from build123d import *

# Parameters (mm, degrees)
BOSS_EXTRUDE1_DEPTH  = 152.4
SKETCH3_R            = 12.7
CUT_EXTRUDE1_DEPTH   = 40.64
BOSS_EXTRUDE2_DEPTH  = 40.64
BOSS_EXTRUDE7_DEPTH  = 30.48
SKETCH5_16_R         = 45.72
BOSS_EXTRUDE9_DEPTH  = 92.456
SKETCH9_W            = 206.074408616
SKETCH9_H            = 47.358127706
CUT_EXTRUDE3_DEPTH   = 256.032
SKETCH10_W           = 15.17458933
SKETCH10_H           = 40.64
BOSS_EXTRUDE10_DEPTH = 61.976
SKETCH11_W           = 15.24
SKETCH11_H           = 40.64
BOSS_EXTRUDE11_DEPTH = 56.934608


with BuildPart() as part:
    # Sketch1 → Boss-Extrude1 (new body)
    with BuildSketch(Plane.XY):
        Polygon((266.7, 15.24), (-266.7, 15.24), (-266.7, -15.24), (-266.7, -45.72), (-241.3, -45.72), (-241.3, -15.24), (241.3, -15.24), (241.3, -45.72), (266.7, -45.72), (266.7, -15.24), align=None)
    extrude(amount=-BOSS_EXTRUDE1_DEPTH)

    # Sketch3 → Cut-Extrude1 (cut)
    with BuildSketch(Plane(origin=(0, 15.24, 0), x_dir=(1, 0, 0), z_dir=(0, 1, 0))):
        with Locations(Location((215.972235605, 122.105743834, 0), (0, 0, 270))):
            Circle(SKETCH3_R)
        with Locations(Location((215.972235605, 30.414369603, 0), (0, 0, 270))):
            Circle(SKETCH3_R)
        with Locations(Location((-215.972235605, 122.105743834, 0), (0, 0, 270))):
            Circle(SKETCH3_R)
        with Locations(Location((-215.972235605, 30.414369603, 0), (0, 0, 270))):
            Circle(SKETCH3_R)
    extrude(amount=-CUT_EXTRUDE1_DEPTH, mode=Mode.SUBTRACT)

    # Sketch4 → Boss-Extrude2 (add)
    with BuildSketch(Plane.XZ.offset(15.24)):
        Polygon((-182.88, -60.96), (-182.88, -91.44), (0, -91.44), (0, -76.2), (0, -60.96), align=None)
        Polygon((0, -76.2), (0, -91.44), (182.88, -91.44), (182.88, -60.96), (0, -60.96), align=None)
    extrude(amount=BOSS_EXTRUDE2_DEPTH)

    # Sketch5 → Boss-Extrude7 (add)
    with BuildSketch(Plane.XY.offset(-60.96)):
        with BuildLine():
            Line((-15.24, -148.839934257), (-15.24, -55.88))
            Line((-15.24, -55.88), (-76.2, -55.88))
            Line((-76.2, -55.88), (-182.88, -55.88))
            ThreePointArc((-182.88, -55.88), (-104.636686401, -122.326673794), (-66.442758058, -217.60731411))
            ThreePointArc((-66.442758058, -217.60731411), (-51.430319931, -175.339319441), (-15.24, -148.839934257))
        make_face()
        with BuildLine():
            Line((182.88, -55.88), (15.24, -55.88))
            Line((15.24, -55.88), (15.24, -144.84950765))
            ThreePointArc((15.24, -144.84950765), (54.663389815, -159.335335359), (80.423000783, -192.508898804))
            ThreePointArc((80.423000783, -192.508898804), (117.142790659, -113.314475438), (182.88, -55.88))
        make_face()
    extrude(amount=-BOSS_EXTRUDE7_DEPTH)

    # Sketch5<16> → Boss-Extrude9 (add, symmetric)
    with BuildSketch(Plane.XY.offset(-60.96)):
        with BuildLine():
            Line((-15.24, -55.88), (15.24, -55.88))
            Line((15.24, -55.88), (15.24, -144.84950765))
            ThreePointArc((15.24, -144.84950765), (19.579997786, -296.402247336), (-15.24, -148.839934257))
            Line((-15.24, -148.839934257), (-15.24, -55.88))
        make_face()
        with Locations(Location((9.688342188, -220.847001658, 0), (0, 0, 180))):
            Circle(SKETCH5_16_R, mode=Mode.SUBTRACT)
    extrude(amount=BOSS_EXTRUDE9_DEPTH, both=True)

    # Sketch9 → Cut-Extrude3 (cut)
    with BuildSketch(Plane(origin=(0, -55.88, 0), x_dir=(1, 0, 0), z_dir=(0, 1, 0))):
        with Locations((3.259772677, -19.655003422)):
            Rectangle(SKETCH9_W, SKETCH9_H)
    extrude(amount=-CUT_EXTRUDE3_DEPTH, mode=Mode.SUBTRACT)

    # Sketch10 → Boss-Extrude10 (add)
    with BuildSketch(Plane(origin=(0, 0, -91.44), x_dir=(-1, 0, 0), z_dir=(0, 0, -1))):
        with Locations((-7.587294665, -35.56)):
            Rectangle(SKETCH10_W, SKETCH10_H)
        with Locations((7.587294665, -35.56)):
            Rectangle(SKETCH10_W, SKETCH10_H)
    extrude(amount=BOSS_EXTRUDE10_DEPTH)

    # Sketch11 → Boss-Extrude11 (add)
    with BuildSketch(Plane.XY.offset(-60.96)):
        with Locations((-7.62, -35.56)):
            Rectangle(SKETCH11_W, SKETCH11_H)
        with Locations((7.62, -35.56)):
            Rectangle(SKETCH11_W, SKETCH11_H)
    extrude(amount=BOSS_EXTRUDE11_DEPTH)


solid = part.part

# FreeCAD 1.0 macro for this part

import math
import FreeCAD as App
import Part
import Sketcher

V = App.Vector
Q = App.Units.Quantity

doc = App.newDocument("Part")
body = doc.addObject("PartDesign::Body", "Body")

# Sketch on XY plane
sketch1 = body.newObject("Sketcher::SketchObject", "Sketch")
sketch1.AttachmentSupport = (doc.getObject("XY_Plane"), [""])
sketch1.MapMode = "FlatFace"
sketch1.addGeometry([
    Part.LineSegment(V(266.7, 15.24, 0), V(-266.7, 15.24, 0)),  # 0
    Part.LineSegment(V(-266.7, 15.24, 0), V(-266.7, -45.72, 0)),  # 1
    Part.LineSegment(V(-266.7, -45.72, 0), V(-241.3, -45.72, 0)),  # 2
    Part.LineSegment(V(-241.3, -45.72, 0), V(-241.3, -15.24, 0)),  # 3
    Part.LineSegment(V(-241.3, -15.24, 0), V(241.3, -15.24, 0)),  # 4
    Part.LineSegment(V(241.3, -15.24, 0), V(241.3, -45.72, 0)),  # 5
    Part.LineSegment(V(241.3, -45.72, 0), V(266.7, -45.72, 0)),  # 6
    Part.LineSegment(V(266.7, -45.72, 0), V(266.7, 15.24, 0)),  # 7
], False)
sketch1.addConstraint([
    Sketcher.Constraint("Coincident", 0, 2, 1, 1),
    Sketcher.Constraint("Coincident", 1, 2, 2, 1),
    Sketcher.Constraint("Coincident", 2, 2, 3, 1),
    Sketcher.Constraint("Coincident", 3, 2, 4, 1),
    Sketcher.Constraint("Coincident", 4, 2, 5, 1),
    Sketcher.Constraint("Coincident", 5, 2, 6, 1),
    Sketcher.Constraint("Coincident", 6, 2, 7, 1),
    Sketcher.Constraint("Coincident", 7, 2, 0, 1),
    Sketcher.Constraint("Horizontal", 0),
    Sketcher.Constraint("Vertical", 1),
    Sketcher.Constraint("Horizontal", 2),
    Sketcher.Constraint("Vertical", 3),
    Sketcher.Constraint("Horizontal", 4),
    Sketcher.Constraint("Vertical", 5),
    Sketcher.Constraint("Horizontal", 6),
    Sketcher.Constraint("Vertical", 7),
    Sketcher.Constraint("Symmetric", 2, 2, 5, 2, -2),
    Sketcher.Constraint("Equal", 2, 6),
    Sketcher.Constraint("DistanceX", 0, 2, 0, 1, Q("21 in")),
    Sketcher.Constraint("DistanceX", 2, 1, 2, 2, Q("1 in")),
    Sketcher.Constraint("DistanceY", 1, 2, 1, 1, Q("2.4 in")),
    Sketcher.Constraint("DistanceY", 3, 1, 3, 2, Q("1.2 in")),
    Sketcher.Constraint("DistanceY", -1, 1, 0, 2, Q("0.6 in")),
])
pad1 = body.newObject("PartDesign::Pad", "Pad")
pad1.Profile = sketch1
pad1.Length = Q("6 in")
pad1.Reversed = True

# Sketch on XZ plane
sketch2 = body.newObject("Sketcher::SketchObject", "Sketch001")
sketch2.AttachmentSupport = (doc.getObject("XZ_Plane"), [""])
sketch2.MapMode = "FlatFace"
sketch2.AttachmentOffset = App.Placement(V(0, 0, -0.6 * 25.4), App.Rotation())
sketch2.addGeometry([
    Part.Circle(V(215.972236, -122.105744, 0), V(0, 0, 1), 12.7),
    Part.Circle(V(215.972236, -30.41437, 0), V(0, 0, 1), 12.7),
    Part.Circle(V(-215.972236, -122.105744, 0), V(0, 0, 1), 12.7),
    Part.Circle(V(-215.972236, -30.41437, 0), V(0, 0, 1), 12.7),
], False)
sketch2.addConstraint([
    Sketcher.Constraint("Equal", 0, 1),
    Sketcher.Constraint("Equal", 1, 2),
    Sketcher.Constraint("Equal", 2, 3),
    Sketcher.Constraint("Symmetric", 0, 3, 2, 3, -2),
    Sketcher.Constraint("Symmetric", 1, 3, 3, 3, -2),
    Sketcher.Constraint("Vertical", 0, 3, 1, 3),
    Sketcher.Constraint("Diameter", 0, Q("1 in")),
    Sketcher.Constraint("DistanceY", 1, 3, -1, 1, Q("30.41437 mm")),
    Sketcher.Constraint("DistanceX", 2, 3, 0, 3, Q("431.944471 mm")),
    Sketcher.Constraint("DistanceY", 0, 3, -1, 1, Q("122.105744 mm")),
])
pocket1 = body.newObject("PartDesign::Pocket", "Pocket")
pocket1.Profile = sketch2
pocket1.Length = Q("1.6 in")
pocket1.Reversed = True

# Sketch on XZ plane
sketch3 = body.newObject("Sketcher::SketchObject", "Sketch002")
sketch3.AttachmentSupport = (doc.getObject("XZ_Plane"), [""])
sketch3.MapMode = "FlatFace"
sketch3.AttachmentOffset = App.Placement(V(0, 0, 0.6 * 25.4), App.Rotation())
sketch3.addGeometry([
    Part.LineSegment(V(-182.88, -60.96, 0), V(-182.88, -91.44, 0)),
    Part.LineSegment(V(-182.88, -91.44, 0), V(182.88, -91.44, 0)),
    Part.LineSegment(V(182.88, -91.44, 0), V(182.88, -60.96, 0)),
    Part.LineSegment(V(182.88, -60.96, 0), V(-182.88, -60.96, 0)),
], False)
sketch3.addConstraint([
    Sketcher.Constraint("Coincident", 0, 2, 1, 1),
    Sketcher.Constraint("Coincident", 1, 2, 2, 1),
    Sketcher.Constraint("Coincident", 2, 2, 3, 1),
    Sketcher.Constraint("Coincident", 3, 2, 0, 1),
    Sketcher.Constraint("Vertical", 0),
    Sketcher.Constraint("Horizontal", 1),
    Sketcher.Constraint("Vertical", 2),
    Sketcher.Constraint("Horizontal", 3),
    Sketcher.Constraint("DistanceX", 1, 1, 1, 2, Q("14.4 in")),
    Sketcher.Constraint("DistanceY", 0, 2, 0, 1, Q("1.2 in")),
    Sketcher.Constraint("DistanceX", 0, 2, -1, 1, Q("7.2 in")),
    Sketcher.Constraint("DistanceY", 0, 2, -1, 1, Q("3.6 in")),
])
pad2 = body.newObject("PartDesign::Pad", "Pad001")
pad2.Profile = sketch3
pad2.Length = Q("1.6 in")

# Sketch on XY plane
sketch4 = body.newObject("Sketcher::SketchObject", "Sketch003")
sketch4.AttachmentSupport = (doc.getObject("XY_Plane"), [""])
sketch4.MapMode = "FlatFace"
sketch4.AttachmentOffset = App.Placement(V(0, 0, -2.4 * 25.4), App.Rotation())
sketch4.addGeometry([
    Part.LineSegment(V(-15.24, -148.839934, 0), V(-15.24, -55.88, 0)),  # 0
    Part.LineSegment(V(-15.24, -55.88, 0), V(-182.88, -55.88, 0)),  # 1
    Part.ArcOfCircle(Part.Circle(V(-277.920728, -247.084301, 0), V(0, 0, 1), 213.522422), math.radians(7.935082), math.radians(63.569694)),  # 2
    Part.ArcOfCircle(Part.Circle(V(9.688342, -220.847002, 0), V(0, 0, 1), 76.2), math.radians(109.095495), math.radians(177.563302)),  # 3
    Part.LineSegment(V(182.88, -55.88, 0), V(15.24, -55.88, 0)),  # 4
    Part.LineSegment(V(15.24, -55.88, 0), V(15.24, -144.849508, 0)),  # 5
    Part.ArcOfCircle(Part.Circle(V(9.688342, -220.847002, 0), V(0, 0, 1), 76.2), math.radians(21.832295), math.radians(85.821934)),  # 6
    Part.ArcOfCircle(Part.Circle(V(285.226884, -239.359492, 0), V(0, 0, 1), 210.094286), math.radians(119.15326), math.radians(167.114822)),  # 7
], False)
sketch4.addConstraint([
    Sketcher.Constraint("Coincident", 0, 2, 1, 1),
    Sketcher.Constraint("Coincident", 1, 2, 2, 2),
    Sketcher.Constraint("Coincident", 2, 1, 3, 2),
    Sketcher.Constraint("Coincident", 3, 1, 0, 1),
    Sketcher.Constraint("Coincident", 4, 2, 5, 1),
    Sketcher.Constraint("Coincident", 5, 2, 6, 2),
    Sketcher.Constraint("Coincident", 6, 1, 7, 2),
    Sketcher.Constraint("Coincident", 7, 1, 4, 1),
    Sketcher.Constraint("Vertical", 0),
    Sketcher.Constraint("Horizontal", 1),
    Sketcher.Constraint("Horizontal", 4),
    Sketcher.Constraint("Vertical", 5),
    Sketcher.Constraint("Coincident", 6, 3, 3, 3),
    Sketcher.Constraint("Equal", 3, 6),
    Sketcher.Constraint("Symmetric", 0, 2, 4, 2, -2),
    Sketcher.Constraint("Equal", 1, 4),
    Sketcher.Constraint("Radius", 3, Q("3 in")),
    Sketcher.Constraint("DistanceX", 1, 2, 1, 1, Q("6.6 in")),
    Sketcher.Constraint("DistanceX", 0, 2, -1, 1, Q("0.6 in")),
    Sketcher.Constraint("DistanceY", 0, 2, -1, 1, Q("2.2 in")),
    Sketcher.Constraint("Radius", 2, Q("213.522422 mm")),
    Sketcher.Constraint("Radius", 7, Q("210.094286 mm")),
    Sketcher.Constraint("DistanceY", 2, 3, -1, 1, Q("247.084301 mm")),
    Sketcher.Constraint("DistanceY", 3, 3, -1, 1, Q("220.847002 mm")),
    Sketcher.Constraint("DistanceX", -1, 1, 6, 1, Q("80.423001 mm")),
    Sketcher.Constraint("DistanceY", 6, 1, -1, 1, Q("192.508899 mm")),
])
pad3 = body.newObject("PartDesign::Pad", "Pad002")
pad3.Profile = sketch4
pad3.Length = Q("1.2 in")
pad3.Reversed = True

# Sketch on XY plane
sketch5 = body.newObject("Sketcher::SketchObject", "Sketch004")
sketch5.AttachmentSupport = (doc.getObject("XY_Plane"), [""])
sketch5.MapMode = "FlatFace"
sketch5.AttachmentOffset = App.Placement(V(0, 0, -2.4 * 25.4), App.Rotation())
sketch5.addGeometry([
    Part.LineSegment(V(15.24, -55.88, 0), V(-15.24, -55.88, 0)),  # 0
    Part.LineSegment(V(-15.24, -55.88, 0), V(-15.24, -148.839934, 0)),  # 1
    Part.ArcOfCircle(Part.Circle(V(9.688342, -220.847002, 0), V(0, 0, 1), 76.2), math.radians(109.095495), math.radians(445.821934)),  # 2
    Part.LineSegment(V(15.24, -144.849508, 0), V(15.24, -55.88, 0)),  # 3
    Part.Circle(V(9.688342, -220.847002, 0), V(0, 0, 1), 45.72),  # 4
], False)
sketch5.addConstraint([
    Sketcher.Constraint("Coincident", 0, 2, 1, 1),
    Sketcher.Constraint("Coincident", 1, 2, 2, 1),
    Sketcher.Constraint("Coincident", 2, 2, 3, 1),
    Sketcher.Constraint("Coincident", 3, 2, 0, 1),
    Sketcher.Constraint("Horizontal", 0),
    Sketcher.Constraint("Vertical", 1),
    Sketcher.Constraint("Vertical", 3),
    Sketcher.Constraint("Coincident", 4, 3, 2, 3),
    Sketcher.Constraint("Radius", 2, Q("3 in")),
    Sketcher.Constraint("Diameter", 4, Q("3.6 in")),
    Sketcher.Constraint("DistanceX", 0, 2, 0, 1, Q("1.2 in")),
    Sketcher.Constraint("DistanceX", 0, 2, -1, 1, Q("0.6 in")),
    Sketcher.Constraint("DistanceY", 0, 2, -1, 1, Q("2.2 in")),
    Sketcher.Constraint("DistanceY", 2, 3, -1, 1, Q("220.847002 mm")),
    Sketcher.Constraint("DistanceY", 1, 2, 1, 1, Q("92.959934 mm")),
])
pad4 = body.newObject("PartDesign::Pad", "Pad003")
pad4.Profile = sketch5
pad4.Length = Q("7.28 in")
pad4.Midplane = True

# Sketch on XZ plane
sketch6 = body.newObject("Sketcher::SketchObject", "Sketch005")
sketch6.AttachmentSupport = (doc.getObject("XZ_Plane"), [""])
sketch6.MapMode = "FlatFace"
sketch6.AttachmentOffset = App.Placement(V(0, 0, 2.2 * 25.4), App.Rotation())
sketch6.addGeometry([
    Part.LineSegment(V(-99.777432, -4.02406, 0), V(-99.777432, 43.334067, 0)),
    Part.LineSegment(V(-99.777432, 43.334067, 0), V(106.296977, 43.334067, 0)),
    Part.LineSegment(V(106.296977, 43.334067, 0), V(106.296977, -4.02406, 0)),
    Part.LineSegment(V(106.296977, -4.02406, 0), V(-99.777432, -4.02406, 0)),
], False)
sketch6.addConstraint([
    Sketcher.Constraint("Coincident", 0, 2, 1, 1),
    Sketcher.Constraint("Coincident", 1, 2, 2, 1),
    Sketcher.Constraint("Coincident", 2, 2, 3, 1),
    Sketcher.Constraint("Coincident", 3, 2, 0, 1),
    Sketcher.Constraint("Vertical", 0),
    Sketcher.Constraint("Horizontal", 1),
    Sketcher.Constraint("Vertical", 2),
    Sketcher.Constraint("Horizontal", 3),
    Sketcher.Constraint("DistanceX", 1, 1, 1, 2, Q("206.074409 mm")),
    Sketcher.Constraint("DistanceY", 0, 1, 0, 2, Q("47.358128 mm")),
    Sketcher.Constraint("DistanceX", 0, 2, -1, 1, Q("99.777432 mm")),
    Sketcher.Constraint("DistanceY", 2, 2, -1, 1, Q("4.02406 mm")),
])
pocket2 = body.newObject("PartDesign::Pocket", "Pocket001")
pocket2.Profile = sketch6
pocket2.Length = Q("10.08 in")
pocket2.Reversed = True

# Sketch on XY plane
sketch7 = body.newObject("Sketcher::SketchObject", "Sketch006")
sketch7.AttachmentSupport = (doc.getObject("XY_Plane"), [""])
sketch7.MapMode = "FlatFace"
sketch7.AttachmentOffset = App.Placement(V(0, 0, -3.6 * 25.4), App.Rotation())
sketch7.addGeometry([
    Part.LineSegment(V(15.174589, -15.24, 0), V(15.174589, -55.88, 0)),
    Part.LineSegment(V(15.174589, -55.88, 0), V(-15.174589, -55.88, 0)),
    Part.LineSegment(V(-15.174589, -55.88, 0), V(-15.174589, -15.24, 0)),
    Part.LineSegment(V(-15.174589, -15.24, 0), V(15.174589, -15.24, 0)),
], False)
sketch7.addConstraint([
    Sketcher.Constraint("Coincident", 0, 2, 1, 1),
    Sketcher.Constraint("Coincident", 1, 2, 2, 1),
    Sketcher.Constraint("Coincident", 2, 2, 3, 1),
    Sketcher.Constraint("Coincident", 3, 2, 0, 1),
    Sketcher.Constraint("Vertical", 0),
    Sketcher.Constraint("Horizontal", 1),
    Sketcher.Constraint("Vertical", 2),
    Sketcher.Constraint("Horizontal", 3),
    Sketcher.Constraint("DistanceY", 0, 2, 0, 1, Q("1.6 in")),
    Sketcher.Constraint("DistanceY", 0, 2, -1, 1, Q("2.2 in")),
    Sketcher.Constraint("DistanceX", 1, 2, 1, 1, Q("30.349179 mm")),
    Sketcher.Constraint("DistanceX", -1, 1, 0, 2, Q("15.174589 mm")),
])
pad5 = body.newObject("PartDesign::Pad", "Pad004")
pad5.Profile = sketch7
pad5.Length = Q("2.44 in")
pad5.Reversed = True

# Sketch on XY plane
sketch8 = body.newObject("Sketcher::SketchObject", "Sketch007")
sketch8.AttachmentSupport = (doc.getObject("XY_Plane"), [""])
sketch8.MapMode = "FlatFace"
sketch8.AttachmentOffset = App.Placement(V(0, 0, -2.4 * 25.4), App.Rotation())
sketch8.addGeometry([
    Part.LineSegment(V(-15.24, -15.24, 0), V(-15.24, -55.88, 0)),
    Part.LineSegment(V(-15.24, -55.88, 0), V(15.24, -55.88, 0)),
    Part.LineSegment(V(15.24, -55.88, 0), V(15.24, -15.24, 0)),
    Part.LineSegment(V(15.24, -15.24, 0), V(-15.24, -15.24, 0)),
], False)
sketch8.addConstraint([
    Sketcher.Constraint("Coincident", 0, 2, 1, 1),
    Sketcher.Constraint("Coincident", 1, 2, 2, 1),
    Sketcher.Constraint("Coincident", 2, 2, 3, 1),
    Sketcher.Constraint("Coincident", 3, 2, 0, 1),
    Sketcher.Constraint("Vertical", 0),
    Sketcher.Constraint("Horizontal", 1),
    Sketcher.Constraint("Vertical", 2),
    Sketcher.Constraint("Horizontal", 3),
    Sketcher.Constraint("DistanceX", 1, 1, 1, 2, Q("1.2 in")),
    Sketcher.Constraint("DistanceY", 0, 2, 0, 1, Q("1.6 in")),
    Sketcher.Constraint("DistanceX", 0, 2, -1, 1, Q("0.6 in")),
    Sketcher.Constraint("DistanceY", 0, 2, -1, 1, Q("2.2 in")),
])
pad6 = body.newObject("PartDesign::Pad", "Pad005")
pad6.Profile = sketch8
pad6.Length = 56.934608

doc.recompute()
